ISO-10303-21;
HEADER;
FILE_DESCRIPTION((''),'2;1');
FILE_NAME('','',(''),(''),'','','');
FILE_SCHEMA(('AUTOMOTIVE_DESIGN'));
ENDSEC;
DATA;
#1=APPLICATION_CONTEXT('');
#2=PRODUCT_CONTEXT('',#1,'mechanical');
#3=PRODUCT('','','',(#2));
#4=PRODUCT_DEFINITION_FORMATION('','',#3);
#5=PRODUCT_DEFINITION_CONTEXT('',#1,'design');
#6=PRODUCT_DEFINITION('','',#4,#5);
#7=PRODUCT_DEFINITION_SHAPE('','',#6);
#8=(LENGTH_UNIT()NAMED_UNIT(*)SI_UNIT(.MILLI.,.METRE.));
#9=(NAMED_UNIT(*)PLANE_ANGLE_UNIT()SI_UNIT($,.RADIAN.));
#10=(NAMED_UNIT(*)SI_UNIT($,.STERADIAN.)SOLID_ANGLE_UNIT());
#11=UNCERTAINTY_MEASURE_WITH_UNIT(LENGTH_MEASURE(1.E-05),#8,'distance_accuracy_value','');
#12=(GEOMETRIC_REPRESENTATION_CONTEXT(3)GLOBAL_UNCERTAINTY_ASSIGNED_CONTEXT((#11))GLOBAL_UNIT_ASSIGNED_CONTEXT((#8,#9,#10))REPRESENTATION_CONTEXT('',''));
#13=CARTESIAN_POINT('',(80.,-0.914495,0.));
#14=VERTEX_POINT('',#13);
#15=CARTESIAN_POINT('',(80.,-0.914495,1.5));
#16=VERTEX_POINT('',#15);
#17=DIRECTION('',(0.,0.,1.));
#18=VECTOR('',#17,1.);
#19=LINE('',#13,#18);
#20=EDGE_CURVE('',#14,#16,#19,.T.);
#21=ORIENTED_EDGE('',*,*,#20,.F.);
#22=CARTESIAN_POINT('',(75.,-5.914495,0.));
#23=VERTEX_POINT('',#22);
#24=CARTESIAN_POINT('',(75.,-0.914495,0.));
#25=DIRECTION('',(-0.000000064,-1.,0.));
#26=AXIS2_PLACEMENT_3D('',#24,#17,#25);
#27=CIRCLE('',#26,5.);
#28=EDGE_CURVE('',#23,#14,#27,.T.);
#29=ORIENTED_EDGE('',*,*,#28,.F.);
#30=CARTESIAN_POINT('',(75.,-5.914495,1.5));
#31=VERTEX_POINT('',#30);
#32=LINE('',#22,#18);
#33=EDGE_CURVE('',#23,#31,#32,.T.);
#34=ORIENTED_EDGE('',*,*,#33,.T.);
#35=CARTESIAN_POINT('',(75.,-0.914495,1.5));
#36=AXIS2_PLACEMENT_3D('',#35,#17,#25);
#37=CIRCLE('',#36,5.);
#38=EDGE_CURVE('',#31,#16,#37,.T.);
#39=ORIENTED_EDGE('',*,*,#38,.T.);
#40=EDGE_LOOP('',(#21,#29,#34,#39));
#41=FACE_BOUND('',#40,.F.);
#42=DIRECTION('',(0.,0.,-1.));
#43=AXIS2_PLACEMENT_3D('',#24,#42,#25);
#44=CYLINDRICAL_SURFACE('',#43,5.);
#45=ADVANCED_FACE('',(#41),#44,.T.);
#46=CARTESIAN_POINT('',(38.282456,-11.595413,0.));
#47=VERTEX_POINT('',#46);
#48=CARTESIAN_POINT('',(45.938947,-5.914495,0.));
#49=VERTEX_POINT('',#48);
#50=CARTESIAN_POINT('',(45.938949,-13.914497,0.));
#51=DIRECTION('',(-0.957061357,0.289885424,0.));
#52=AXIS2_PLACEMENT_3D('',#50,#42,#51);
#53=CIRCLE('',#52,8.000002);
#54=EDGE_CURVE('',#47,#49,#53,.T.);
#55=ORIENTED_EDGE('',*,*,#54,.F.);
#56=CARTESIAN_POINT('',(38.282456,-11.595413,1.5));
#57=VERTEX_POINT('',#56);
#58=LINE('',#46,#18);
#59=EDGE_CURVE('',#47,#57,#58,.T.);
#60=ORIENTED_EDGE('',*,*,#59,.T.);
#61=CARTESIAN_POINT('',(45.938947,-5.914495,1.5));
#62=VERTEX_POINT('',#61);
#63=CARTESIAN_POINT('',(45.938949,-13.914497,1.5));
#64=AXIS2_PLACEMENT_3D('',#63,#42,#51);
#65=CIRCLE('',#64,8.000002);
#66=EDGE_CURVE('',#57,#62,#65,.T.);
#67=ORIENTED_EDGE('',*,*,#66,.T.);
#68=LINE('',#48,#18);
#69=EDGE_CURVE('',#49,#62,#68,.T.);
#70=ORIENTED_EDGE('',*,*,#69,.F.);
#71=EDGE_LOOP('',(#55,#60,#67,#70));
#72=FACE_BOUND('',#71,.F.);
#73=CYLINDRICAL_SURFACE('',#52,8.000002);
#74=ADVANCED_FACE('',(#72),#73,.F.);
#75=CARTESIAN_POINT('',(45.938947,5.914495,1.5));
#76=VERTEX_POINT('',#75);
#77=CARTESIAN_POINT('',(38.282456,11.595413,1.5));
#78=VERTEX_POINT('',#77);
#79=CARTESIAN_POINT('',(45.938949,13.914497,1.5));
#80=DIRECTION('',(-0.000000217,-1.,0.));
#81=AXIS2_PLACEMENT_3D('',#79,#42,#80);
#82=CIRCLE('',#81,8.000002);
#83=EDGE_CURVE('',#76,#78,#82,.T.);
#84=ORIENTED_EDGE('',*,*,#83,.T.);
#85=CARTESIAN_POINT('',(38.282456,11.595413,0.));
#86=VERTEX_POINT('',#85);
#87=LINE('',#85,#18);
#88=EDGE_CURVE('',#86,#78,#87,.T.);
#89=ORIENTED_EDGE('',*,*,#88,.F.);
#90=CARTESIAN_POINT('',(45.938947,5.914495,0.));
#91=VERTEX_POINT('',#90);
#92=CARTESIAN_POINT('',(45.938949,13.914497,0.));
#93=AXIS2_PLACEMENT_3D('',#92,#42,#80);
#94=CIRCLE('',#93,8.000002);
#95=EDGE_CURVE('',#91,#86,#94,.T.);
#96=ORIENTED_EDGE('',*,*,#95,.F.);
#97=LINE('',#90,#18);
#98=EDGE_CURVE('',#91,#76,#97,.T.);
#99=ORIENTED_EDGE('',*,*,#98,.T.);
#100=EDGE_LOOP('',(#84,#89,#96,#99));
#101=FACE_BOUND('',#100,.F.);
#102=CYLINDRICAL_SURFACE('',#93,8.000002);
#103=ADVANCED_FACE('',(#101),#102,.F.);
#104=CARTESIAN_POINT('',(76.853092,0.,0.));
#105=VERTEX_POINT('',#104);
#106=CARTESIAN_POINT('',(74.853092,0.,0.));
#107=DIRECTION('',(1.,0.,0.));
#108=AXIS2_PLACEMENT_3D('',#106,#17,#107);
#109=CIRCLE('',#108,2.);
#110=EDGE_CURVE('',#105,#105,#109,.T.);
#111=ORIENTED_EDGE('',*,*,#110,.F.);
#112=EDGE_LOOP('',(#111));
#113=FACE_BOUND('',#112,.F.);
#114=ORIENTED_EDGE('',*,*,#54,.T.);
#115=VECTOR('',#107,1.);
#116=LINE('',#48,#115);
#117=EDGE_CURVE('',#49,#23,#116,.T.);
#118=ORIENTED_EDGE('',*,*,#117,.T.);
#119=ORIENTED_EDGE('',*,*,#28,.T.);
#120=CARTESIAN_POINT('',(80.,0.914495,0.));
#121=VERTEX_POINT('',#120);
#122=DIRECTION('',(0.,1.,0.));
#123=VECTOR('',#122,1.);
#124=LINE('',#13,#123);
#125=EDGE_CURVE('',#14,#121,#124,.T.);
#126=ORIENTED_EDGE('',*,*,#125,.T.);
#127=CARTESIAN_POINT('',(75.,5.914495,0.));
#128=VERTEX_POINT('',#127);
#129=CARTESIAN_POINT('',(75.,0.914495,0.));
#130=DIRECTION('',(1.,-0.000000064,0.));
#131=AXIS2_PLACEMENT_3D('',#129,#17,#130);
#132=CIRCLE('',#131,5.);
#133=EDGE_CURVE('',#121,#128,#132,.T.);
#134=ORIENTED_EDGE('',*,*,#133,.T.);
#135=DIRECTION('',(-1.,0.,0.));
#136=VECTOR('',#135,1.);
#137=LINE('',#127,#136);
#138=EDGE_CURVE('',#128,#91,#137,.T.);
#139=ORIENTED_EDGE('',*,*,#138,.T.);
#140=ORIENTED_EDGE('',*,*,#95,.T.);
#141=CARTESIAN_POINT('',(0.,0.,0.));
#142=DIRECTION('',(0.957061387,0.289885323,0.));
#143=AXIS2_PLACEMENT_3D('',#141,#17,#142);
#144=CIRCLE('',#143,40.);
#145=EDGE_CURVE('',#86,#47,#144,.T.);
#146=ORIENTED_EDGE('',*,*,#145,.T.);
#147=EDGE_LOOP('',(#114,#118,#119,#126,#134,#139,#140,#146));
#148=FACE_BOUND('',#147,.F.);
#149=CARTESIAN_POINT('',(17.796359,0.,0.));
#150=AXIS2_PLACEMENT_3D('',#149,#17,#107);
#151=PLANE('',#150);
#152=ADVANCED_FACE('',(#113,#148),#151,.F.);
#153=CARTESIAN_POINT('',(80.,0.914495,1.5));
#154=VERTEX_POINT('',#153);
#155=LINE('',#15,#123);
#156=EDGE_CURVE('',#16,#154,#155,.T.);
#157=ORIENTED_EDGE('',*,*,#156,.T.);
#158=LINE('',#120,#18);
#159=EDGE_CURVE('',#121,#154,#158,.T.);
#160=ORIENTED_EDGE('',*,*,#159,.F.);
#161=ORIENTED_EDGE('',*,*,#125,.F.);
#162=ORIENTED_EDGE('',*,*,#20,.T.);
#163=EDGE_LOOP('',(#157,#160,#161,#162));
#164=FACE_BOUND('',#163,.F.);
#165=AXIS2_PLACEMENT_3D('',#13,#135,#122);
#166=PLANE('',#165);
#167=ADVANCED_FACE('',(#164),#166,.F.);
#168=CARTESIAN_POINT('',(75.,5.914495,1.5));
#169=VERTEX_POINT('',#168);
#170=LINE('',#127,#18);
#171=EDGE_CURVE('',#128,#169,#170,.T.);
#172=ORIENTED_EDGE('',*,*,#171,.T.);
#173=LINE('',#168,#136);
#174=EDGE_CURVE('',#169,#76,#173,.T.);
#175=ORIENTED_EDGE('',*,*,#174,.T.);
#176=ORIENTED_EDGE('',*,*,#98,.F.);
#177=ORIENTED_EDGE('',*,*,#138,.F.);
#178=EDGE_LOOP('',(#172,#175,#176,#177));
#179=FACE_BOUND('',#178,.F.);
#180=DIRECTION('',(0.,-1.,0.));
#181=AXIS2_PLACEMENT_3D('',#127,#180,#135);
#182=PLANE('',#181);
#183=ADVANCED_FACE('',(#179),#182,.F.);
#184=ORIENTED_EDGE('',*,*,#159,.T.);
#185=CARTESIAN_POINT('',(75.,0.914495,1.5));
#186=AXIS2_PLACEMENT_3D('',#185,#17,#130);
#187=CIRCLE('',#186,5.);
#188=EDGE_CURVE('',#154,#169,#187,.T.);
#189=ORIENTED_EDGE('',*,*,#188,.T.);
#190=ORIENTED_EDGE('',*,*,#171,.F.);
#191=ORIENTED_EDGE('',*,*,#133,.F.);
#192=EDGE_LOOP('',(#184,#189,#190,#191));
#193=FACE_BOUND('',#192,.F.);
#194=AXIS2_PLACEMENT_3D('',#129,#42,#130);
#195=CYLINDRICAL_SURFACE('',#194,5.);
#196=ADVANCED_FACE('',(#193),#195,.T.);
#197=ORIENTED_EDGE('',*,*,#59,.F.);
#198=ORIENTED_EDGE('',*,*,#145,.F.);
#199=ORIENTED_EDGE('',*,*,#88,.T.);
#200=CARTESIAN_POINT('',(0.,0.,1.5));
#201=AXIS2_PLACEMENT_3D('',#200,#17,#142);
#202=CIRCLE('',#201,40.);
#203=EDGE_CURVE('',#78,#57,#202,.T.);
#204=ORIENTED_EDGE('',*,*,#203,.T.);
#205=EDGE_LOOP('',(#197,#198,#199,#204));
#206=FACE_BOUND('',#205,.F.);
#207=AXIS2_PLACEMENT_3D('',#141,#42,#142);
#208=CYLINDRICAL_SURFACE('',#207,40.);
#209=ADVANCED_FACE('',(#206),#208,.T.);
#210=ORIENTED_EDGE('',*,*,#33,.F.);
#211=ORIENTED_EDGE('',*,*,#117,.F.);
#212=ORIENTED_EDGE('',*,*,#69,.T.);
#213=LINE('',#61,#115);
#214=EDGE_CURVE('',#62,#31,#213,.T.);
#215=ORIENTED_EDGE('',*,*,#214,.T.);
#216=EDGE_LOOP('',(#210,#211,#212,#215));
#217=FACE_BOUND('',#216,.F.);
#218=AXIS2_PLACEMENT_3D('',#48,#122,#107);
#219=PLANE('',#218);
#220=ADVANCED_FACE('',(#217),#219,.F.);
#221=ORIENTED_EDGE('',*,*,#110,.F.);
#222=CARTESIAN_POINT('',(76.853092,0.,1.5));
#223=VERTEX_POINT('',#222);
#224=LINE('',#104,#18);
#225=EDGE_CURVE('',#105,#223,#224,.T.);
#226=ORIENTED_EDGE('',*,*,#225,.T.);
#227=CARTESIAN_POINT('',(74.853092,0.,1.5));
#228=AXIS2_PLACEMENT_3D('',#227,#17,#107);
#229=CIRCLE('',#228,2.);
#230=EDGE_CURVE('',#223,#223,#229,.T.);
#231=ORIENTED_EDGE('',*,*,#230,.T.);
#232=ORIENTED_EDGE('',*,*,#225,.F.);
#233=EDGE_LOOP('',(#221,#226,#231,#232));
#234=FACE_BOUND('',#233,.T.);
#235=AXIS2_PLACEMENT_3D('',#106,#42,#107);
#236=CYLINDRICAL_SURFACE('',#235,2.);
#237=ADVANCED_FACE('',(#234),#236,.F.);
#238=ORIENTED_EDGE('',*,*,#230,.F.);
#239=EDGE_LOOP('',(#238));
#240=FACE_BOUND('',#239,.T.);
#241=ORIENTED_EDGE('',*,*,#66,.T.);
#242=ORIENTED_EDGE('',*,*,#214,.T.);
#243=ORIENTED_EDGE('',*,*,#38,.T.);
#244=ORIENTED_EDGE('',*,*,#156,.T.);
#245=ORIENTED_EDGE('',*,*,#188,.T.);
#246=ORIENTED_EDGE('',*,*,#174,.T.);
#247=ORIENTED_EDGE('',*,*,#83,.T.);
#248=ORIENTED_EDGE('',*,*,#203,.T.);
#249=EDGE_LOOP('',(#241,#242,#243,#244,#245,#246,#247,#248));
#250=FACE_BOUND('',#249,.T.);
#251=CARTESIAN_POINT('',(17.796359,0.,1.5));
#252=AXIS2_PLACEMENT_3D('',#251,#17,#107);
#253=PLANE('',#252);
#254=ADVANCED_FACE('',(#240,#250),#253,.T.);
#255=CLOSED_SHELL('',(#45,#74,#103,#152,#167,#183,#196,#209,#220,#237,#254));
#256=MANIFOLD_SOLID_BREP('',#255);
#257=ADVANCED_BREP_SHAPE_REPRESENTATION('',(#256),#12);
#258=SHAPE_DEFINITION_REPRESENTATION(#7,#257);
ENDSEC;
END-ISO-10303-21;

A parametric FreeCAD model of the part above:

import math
import FreeCAD as App
import Part
import Sketcher
Q = App.Units.Quantity

doc = App.newDocument("Part")
body = doc.addObject("PartDesign::Body", "Body")

sketch1 = doc.addObject("Sketcher::SketchObject", "Sketch")
body.addObject(sketch1)
sketch1.AttachmentSupport = (doc.XY_Plane, [""])
sketch1.MapMode = "FlatFace"
sketch1.addGeometry(Part.ArcOfCircle(Part.Circle(App.Vector(45.9, 13.9, 0), App.Vector(0, 0, 1), 8), math.radians(-163), math.radians(-90)), False)
sketch1.addGeometry(Part.ArcOfCircle(Part.Circle(App.Vector(0, 0, 0), App.Vector(0, 0, 1), 40), math.radians(17), math.radians(343)), False)
sketch1.addGeometry(Part.ArcOfCircle(Part.Circle(App.Vector(45.9, -13.9, 0), App.Vector(0, 0, 1), 8), math.radians(90), math.radians(163)), False)
sketch1.addGeometry(Part.LineSegment(App.Vector(45.9, -5.9, 0), App.Vector(75, -5.9, 0)), False)
sketch1.addGeometry(Part.ArcOfCircle(Part.Circle(App.Vector(75, -0.9, 0), App.Vector(0, 0, 1), 5), math.radians(-90), math.radians(0)), False)
sketch1.addGeometry(Part.LineSegment(App.Vector(80, -0.9, 0), App.Vector(80, 0.9, 0)), False)
sketch1.addGeometry(Part.ArcOfCircle(Part.Circle(App.Vector(75, 0.9, 0), App.Vector(0, 0, 1), 5), math.radians(0), math.radians(90)), False)
sketch1.addGeometry(Part.LineSegment(App.Vector(75, 5.9, 0), App.Vector(45.9, 5.9, 0)), False)
sketch1.addGeometry(Part.Circle(App.Vector(74.9, 0, 0), App.Vector(0, 0, 1), 2), False)
sketch1.addConstraint(Sketcher.Constraint("Tangent", 0, 1, 1, 1))
sketch1.addConstraint(Sketcher.Constraint("Tangent", 1, 2, 2, 2))
sketch1.addConstraint(Sketcher.Constraint("Tangent", 2, 1, 3, 1))
sketch1.addConstraint(Sketcher.Constraint("Tangent", 3, 2, 4, 1))
sketch1.addConstraint(Sketcher.Constraint("Tangent", 4, 2, 5, 1))
sketch1.addConstraint(Sketcher.Constraint("Tangent", 5, 2, 6, 1))
sketch1.addConstraint(Sketcher.Constraint("Tangent", 6, 2, 7, 1))
sketch1.addConstraint(Sketcher.Constraint("Tangent", 7, 2, 0, 2))
sketch1.addConstraint(Sketcher.Constraint("Horizontal", 3))
sketch1.addConstraint(Sketcher.Constraint("Vertical", 5))
sketch1.addConstraint(Sketcher.Constraint("Horizontal", 7))
sketch1.addConstraint(Sketcher.Constraint("Coincident", 1, 3, -1, 1))
sketch1.addConstraint(Sketcher.Constraint("Equal", 0, 2))
sketch1.addConstraint(Sketcher.Constraint("Equal", 4, 6))
sketch1.addConstraint(Sketcher.Constraint("PointOnObject", 8, 3, -1))
sketch1.addConstraint(Sketcher.Constraint("Vertical", 0, 3, 2, 3))
sketch1.addConstraint(Sketcher.Constraint("Diameter", 8, Q("4 mm")))
sketch1.addConstraint(Sketcher.Constraint("Radius", 0, Q("8.000002 mm")))
sketch1.addConstraint(Sketcher.Constraint("Radius", 1, Q("40 mm")))
sketch1.addConstraint(Sketcher.Constraint("Radius", 4, Q("5 mm")))
sketch1.addConstraint(Sketcher.Constraint("DistanceX", -1, 1, 4, 3, Q("75 mm")))
sketch1.addConstraint(Sketcher.Constraint("DistanceY", 5, 1, 5, 2, Q("1.82899 mm")))
sketch1.addConstraint(Sketcher.Constraint("DistanceX", 8, 3, 4, 3, Q("0.146908 mm")))
pad1 = doc.addObject("PartDesign::Pad", "Pad")
body.addObject(pad1)
pad1.Profile = sketch1
pad1.Length = 1.5

doc.recompute()
